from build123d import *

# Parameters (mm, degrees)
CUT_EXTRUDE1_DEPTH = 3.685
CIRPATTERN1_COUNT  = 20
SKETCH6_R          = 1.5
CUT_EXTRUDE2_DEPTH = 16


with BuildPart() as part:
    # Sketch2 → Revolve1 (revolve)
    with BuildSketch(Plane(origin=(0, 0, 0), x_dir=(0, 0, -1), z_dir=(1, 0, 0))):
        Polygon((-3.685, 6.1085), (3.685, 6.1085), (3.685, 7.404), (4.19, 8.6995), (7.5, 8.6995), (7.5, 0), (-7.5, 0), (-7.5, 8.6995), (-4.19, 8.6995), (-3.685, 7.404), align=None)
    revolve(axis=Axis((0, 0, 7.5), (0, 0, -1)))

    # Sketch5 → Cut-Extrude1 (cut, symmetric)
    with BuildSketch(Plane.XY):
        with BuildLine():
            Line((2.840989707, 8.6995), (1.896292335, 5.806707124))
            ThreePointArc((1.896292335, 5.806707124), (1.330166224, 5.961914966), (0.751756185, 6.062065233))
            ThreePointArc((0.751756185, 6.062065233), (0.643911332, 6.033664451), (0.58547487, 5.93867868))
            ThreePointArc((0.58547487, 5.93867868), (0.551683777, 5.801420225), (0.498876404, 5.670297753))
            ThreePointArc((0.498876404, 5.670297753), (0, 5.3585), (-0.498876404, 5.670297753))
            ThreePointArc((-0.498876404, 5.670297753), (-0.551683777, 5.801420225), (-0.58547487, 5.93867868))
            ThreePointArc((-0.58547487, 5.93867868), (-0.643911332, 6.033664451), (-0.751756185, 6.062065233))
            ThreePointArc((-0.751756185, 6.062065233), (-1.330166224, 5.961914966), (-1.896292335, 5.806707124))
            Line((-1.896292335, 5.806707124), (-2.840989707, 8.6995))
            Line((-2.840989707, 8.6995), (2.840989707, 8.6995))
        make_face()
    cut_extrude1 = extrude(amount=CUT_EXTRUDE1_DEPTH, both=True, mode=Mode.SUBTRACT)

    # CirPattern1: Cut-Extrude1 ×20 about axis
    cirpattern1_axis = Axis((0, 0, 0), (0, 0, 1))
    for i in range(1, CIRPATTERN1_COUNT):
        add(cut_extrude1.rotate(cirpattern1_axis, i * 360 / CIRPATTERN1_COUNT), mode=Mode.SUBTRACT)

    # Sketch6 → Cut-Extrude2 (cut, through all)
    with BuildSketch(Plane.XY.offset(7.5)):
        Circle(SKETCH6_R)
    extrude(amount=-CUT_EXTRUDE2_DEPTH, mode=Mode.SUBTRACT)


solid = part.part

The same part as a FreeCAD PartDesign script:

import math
import FreeCAD as App
import Part
import Sketcher
Q = App.Units.Quantity

doc = App.newDocument("Part")
body = doc.addObject("PartDesign::Body", "Body")

# Sketch on YZ plane
sketch1 = body.newObject("Sketcher::SketchObject", "Sketch")
sketch1.AttachmentSupport = (doc.getObject("YZ_Plane"), [""])
sketch1.MapMode = "FlatFace"
sketch1.addGeometry([
    Part.LineSegment(App.Vector(6.1, -3.7, 0), App.Vector(6.1, 3.7, 0)),  # 0
    Part.LineSegment(App.Vector(6.1, 3.7, 0), App.Vector(7.4, 3.7, 0)),  # 1
    Part.LineSegment(App.Vector(7.4, 3.7, 0), App.Vector(8.7, 4.2, 0)),  # 2
    Part.LineSegment(App.Vector(8.7, 4.2, 0), App.Vector(8.7, 7.5, 0)),  # 3
    Part.LineSegment(App.Vector(8.7, 7.5, 0), App.Vector(0, 7.5, 0)),  # 4
    Part.LineSegment(App.Vector(0, 7.5, 0), App.Vector(0, -7.5, 0)),  # 5
    Part.LineSegment(App.Vector(0, -7.5, 0), App.Vector(8.7, -7.5, 0)),  # 6
    Part.LineSegment(App.Vector(8.7, -7.5, 0), App.Vector(8.7, -4.2, 0)),  # 7
    Part.LineSegment(App.Vector(8.7, -4.2, 0), App.Vector(7.4, -3.7, 0)),  # 8
    Part.LineSegment(App.Vector(7.4, -3.7, 0), App.Vector(6.1, -3.7, 0)),  # 9
], False)
sketch1.addConstraint([
    Sketcher.Constraint("Coincident", 0, 2, 1, 1),
    Sketcher.Constraint("Coincident", 1, 2, 2, 1),
    Sketcher.Constraint("Coincident", 2, 2, 3, 1),
    Sketcher.Constraint("Coincident", 3, 2, 4, 1),
    Sketcher.Constraint("Coincident", 4, 2, 5, 1),
    Sketcher.Constraint("Coincident", 5, 2, 6, 1),
    Sketcher.Constraint("Coincident", 6, 2, 7, 1),
    Sketcher.Constraint("Coincident", 7, 2, 8, 1),
    Sketcher.Constraint("Coincident", 8, 2, 9, 1),
    Sketcher.Constraint("Coincident", 9, 2, 0, 1),
    Sketcher.Constraint("Vertical", 0),
    Sketcher.Constraint("Horizontal", 1),
    Sketcher.Constraint("Vertical", 3),
    Sketcher.Constraint("Horizontal", 4),
    Sketcher.Constraint("Vertical", 5),
    Sketcher.Constraint("Horizontal", 6),
    Sketcher.Constraint("Vertical", 7),
    Sketcher.Constraint("Horizontal", 9),
    Sketcher.Constraint("Symmetric", 4, 2, 5, 2, -1, 1),
    Sketcher.Constraint("Symmetric", 2, 2, 7, 2, -1),
    Sketcher.Constraint("Symmetric", 1, 2, 8, 2, -1),
    Sketcher.Constraint("DistanceY", 5, 2, 5, 1, Q("15 mm")),
    Sketcher.Constraint("DistanceY", 0, 1, 0, 2, Q("7.37 mm")),
    Sketcher.Constraint("DistanceY", 3, 1, 3, 2, Q("3.31 mm")),
    Sketcher.Constraint("DistanceX", 1, 1, 1, 2, Q("1.2955 mm")),
    Sketcher.Constraint("DistanceX", 4, 2, 4, 1, Q("8.6995 mm")),
    Sketcher.Constraint("DistanceX", -1, 1, 1, 2, Q("7.404 mm")),
])
revolution = body.newObject("PartDesign::Revolution", "Revolution")
revolution.Profile = sketch1
revolution.ReferenceAxis = (sketch1, ["V_Axis"])
revolution.Angle = 360

# Sketch on XY plane
sketch2 = body.newObject("Sketcher::SketchObject", "Sketch001")
sketch2.AttachmentSupport = (doc.getObject("XY_Plane"), [""])
sketch2.MapMode = "FlatFace"
sketch2.addGeometry([
    Part.LineSegment(App.Vector(1.9, 5.81, 0), App.Vector(2.84, 8.7, 0)),  # 0
    Part.LineSegment(App.Vector(2.84, 8.7, 0), App.Vector(-2.84, 8.7, 0)),  # 1
    Part.LineSegment(App.Vector(-2.84, 8.7, 0), App.Vector(-1.9, 5.81, 0)),  # 2
    Part.ArcOfCircle(Part.Circle(App.Vector(0, 0, 0), App.Vector(0, 0, 1), 6.11), math.radians(97.07), math.radians(108.09)),  # 3
    Part.ArcOfCircle(Part.Circle(App.Vector(-0.73, 5.91, 0), App.Vector(0, 0, 1), 0.15), math.radians(10), math.radians(97)),  # 4
    Part.ArcOfCircle(Part.Circle(App.Vector(0.4, 6.11, 0), App.Vector(0, 0, 1), 1), math.radians(-170.22), math.radians(-154.01)),  # 5
    Part.ArcOfCircle(Part.Circle(App.Vector(0, 5.91, 0), App.Vector(0, 0, 1), 0.55), math.radians(-154), math.radians(-26)),  # 6
    Part.ArcOfCircle(Part.Circle(App.Vector(-0.4, 6.11, 0), App.Vector(0, 0, 1), 1), math.radians(-25.99), math.radians(-9.78)),  # 7
    Part.ArcOfCircle(Part.Circle(App.Vector(0.73, 5.91, 0), App.Vector(0, 0, 1), 0.15), math.radians(83), math.radians(170)),  # 8
    Part.ArcOfCircle(Part.Circle(App.Vector(0, 0, 0), App.Vector(0, 0, 1), 6.11), math.radians(71.91), math.radians(82.93)),  # 9
], False)
sketch2.addConstraint([
    Sketcher.Constraint("Coincident", 0, 2, 1, 1),
    Sketcher.Constraint("Coincident", 1, 2, 2, 1),
    Sketcher.Constraint("Coincident", 2, 2, 3, 2),
    Sketcher.Constraint("Tangent", 3, 1, 4, 2),
    Sketcher.Constraint("Tangent", 4, 1, 5, 1),
    Sketcher.Constraint("Tangent", 5, 2, 6, 1),
    Sketcher.Constraint("Tangent", 6, 2, 7, 1),
    Sketcher.Constraint("Tangent", 7, 2, 8, 2),
    Sketcher.Constraint("Tangent", 8, 1, 9, 2),
    Sketcher.Constraint("Coincident", 9, 1, 0, 1),
    Sketcher.Constraint("Horizontal", 1),
    Sketcher.Constraint("Coincident", 3, 3, -1, 1),
    Sketcher.Constraint("Coincident", 9, 3, -1, 1),
    Sketcher.Constraint("Equal", 5, 7),
    Sketcher.Constraint("Equal", 4, 8),
    Sketcher.Constraint("Equal", 3, 9),
    Sketcher.Constraint("Symmetric", 5, 3, 7, 3, -2),
    Sketcher.Constraint("Horizontal", 2, 2, 9, 1),
    Sketcher.Constraint("Equal", 0, 2),
    Sketcher.Constraint("Radius", 5, Q("1 mm")),
    Sketcher.Constraint("Radius", 4, Q("0.15 mm")),
    Sketcher.Constraint("Radius", 6, Q("0.555 mm")),
    Sketcher.Constraint("DistanceX", -1, 1, 5, 3, Q("0.4 mm")),
    Sketcher.Constraint("Radius", 3, Q("6.1085 mm")),
    Sketcher.Constraint("DistanceY", 5, 3, 0, 2, Q("2.591 mm")),
    Sketcher.Constraint("DistanceX", 1, 2, 1, 1, Q("5.681979 mm")),
    Sketcher.Constraint("DistanceY", -1, 1, 5, 3, Q("6.1085 mm")),
    Sketcher.Constraint("DistanceY", 2, 2, 4, 3, Q("0.106498 mm")),
])
pocket1 = body.newObject("PartDesign::Pocket", "Pocket")
pocket1.Profile = sketch2
pocket1.Length = 7.37
pocket1.Midplane = True
doc.recompute()

polarpattern = body.newObject("PartDesign::PolarPattern", "PolarPattern")
polarpattern.Originals = [pocket1]
polarpattern.Axis = (doc.getObject("Z_Axis"), [""])
polarpattern.Angle = 360
polarpattern.Occurrences = 20
body.Tip = polarpattern

# Sketch on XY plane
sketch3 = body.newObject("Sketcher::SketchObject", "Sketch002")
sketch3.AttachmentSupport = (doc.getObject("XY_Plane"), [""])
sketch3.MapMode = "FlatFace"
sketch3.AttachmentOffset = App.Placement(App.Vector(0, 0, 7.5), App.Rotation())
sketch3.addGeometry(Part.Circle(App.Vector(0, 0, 0), App.Vector(0, 0, 1), 1.5), False)
sketch3.addConstraint([
    Sketcher.Constraint("Coincident", 0, 3, -1, 1),
    Sketcher.Constraint("Diameter", 0, Q("3 mm")),
])
pocket2 = body.newObject("PartDesign::Pocket", "Pocket001")
pocket2.Profile = sketch3
pocket2.Type = "ThroughAll"

doc.recompute()
